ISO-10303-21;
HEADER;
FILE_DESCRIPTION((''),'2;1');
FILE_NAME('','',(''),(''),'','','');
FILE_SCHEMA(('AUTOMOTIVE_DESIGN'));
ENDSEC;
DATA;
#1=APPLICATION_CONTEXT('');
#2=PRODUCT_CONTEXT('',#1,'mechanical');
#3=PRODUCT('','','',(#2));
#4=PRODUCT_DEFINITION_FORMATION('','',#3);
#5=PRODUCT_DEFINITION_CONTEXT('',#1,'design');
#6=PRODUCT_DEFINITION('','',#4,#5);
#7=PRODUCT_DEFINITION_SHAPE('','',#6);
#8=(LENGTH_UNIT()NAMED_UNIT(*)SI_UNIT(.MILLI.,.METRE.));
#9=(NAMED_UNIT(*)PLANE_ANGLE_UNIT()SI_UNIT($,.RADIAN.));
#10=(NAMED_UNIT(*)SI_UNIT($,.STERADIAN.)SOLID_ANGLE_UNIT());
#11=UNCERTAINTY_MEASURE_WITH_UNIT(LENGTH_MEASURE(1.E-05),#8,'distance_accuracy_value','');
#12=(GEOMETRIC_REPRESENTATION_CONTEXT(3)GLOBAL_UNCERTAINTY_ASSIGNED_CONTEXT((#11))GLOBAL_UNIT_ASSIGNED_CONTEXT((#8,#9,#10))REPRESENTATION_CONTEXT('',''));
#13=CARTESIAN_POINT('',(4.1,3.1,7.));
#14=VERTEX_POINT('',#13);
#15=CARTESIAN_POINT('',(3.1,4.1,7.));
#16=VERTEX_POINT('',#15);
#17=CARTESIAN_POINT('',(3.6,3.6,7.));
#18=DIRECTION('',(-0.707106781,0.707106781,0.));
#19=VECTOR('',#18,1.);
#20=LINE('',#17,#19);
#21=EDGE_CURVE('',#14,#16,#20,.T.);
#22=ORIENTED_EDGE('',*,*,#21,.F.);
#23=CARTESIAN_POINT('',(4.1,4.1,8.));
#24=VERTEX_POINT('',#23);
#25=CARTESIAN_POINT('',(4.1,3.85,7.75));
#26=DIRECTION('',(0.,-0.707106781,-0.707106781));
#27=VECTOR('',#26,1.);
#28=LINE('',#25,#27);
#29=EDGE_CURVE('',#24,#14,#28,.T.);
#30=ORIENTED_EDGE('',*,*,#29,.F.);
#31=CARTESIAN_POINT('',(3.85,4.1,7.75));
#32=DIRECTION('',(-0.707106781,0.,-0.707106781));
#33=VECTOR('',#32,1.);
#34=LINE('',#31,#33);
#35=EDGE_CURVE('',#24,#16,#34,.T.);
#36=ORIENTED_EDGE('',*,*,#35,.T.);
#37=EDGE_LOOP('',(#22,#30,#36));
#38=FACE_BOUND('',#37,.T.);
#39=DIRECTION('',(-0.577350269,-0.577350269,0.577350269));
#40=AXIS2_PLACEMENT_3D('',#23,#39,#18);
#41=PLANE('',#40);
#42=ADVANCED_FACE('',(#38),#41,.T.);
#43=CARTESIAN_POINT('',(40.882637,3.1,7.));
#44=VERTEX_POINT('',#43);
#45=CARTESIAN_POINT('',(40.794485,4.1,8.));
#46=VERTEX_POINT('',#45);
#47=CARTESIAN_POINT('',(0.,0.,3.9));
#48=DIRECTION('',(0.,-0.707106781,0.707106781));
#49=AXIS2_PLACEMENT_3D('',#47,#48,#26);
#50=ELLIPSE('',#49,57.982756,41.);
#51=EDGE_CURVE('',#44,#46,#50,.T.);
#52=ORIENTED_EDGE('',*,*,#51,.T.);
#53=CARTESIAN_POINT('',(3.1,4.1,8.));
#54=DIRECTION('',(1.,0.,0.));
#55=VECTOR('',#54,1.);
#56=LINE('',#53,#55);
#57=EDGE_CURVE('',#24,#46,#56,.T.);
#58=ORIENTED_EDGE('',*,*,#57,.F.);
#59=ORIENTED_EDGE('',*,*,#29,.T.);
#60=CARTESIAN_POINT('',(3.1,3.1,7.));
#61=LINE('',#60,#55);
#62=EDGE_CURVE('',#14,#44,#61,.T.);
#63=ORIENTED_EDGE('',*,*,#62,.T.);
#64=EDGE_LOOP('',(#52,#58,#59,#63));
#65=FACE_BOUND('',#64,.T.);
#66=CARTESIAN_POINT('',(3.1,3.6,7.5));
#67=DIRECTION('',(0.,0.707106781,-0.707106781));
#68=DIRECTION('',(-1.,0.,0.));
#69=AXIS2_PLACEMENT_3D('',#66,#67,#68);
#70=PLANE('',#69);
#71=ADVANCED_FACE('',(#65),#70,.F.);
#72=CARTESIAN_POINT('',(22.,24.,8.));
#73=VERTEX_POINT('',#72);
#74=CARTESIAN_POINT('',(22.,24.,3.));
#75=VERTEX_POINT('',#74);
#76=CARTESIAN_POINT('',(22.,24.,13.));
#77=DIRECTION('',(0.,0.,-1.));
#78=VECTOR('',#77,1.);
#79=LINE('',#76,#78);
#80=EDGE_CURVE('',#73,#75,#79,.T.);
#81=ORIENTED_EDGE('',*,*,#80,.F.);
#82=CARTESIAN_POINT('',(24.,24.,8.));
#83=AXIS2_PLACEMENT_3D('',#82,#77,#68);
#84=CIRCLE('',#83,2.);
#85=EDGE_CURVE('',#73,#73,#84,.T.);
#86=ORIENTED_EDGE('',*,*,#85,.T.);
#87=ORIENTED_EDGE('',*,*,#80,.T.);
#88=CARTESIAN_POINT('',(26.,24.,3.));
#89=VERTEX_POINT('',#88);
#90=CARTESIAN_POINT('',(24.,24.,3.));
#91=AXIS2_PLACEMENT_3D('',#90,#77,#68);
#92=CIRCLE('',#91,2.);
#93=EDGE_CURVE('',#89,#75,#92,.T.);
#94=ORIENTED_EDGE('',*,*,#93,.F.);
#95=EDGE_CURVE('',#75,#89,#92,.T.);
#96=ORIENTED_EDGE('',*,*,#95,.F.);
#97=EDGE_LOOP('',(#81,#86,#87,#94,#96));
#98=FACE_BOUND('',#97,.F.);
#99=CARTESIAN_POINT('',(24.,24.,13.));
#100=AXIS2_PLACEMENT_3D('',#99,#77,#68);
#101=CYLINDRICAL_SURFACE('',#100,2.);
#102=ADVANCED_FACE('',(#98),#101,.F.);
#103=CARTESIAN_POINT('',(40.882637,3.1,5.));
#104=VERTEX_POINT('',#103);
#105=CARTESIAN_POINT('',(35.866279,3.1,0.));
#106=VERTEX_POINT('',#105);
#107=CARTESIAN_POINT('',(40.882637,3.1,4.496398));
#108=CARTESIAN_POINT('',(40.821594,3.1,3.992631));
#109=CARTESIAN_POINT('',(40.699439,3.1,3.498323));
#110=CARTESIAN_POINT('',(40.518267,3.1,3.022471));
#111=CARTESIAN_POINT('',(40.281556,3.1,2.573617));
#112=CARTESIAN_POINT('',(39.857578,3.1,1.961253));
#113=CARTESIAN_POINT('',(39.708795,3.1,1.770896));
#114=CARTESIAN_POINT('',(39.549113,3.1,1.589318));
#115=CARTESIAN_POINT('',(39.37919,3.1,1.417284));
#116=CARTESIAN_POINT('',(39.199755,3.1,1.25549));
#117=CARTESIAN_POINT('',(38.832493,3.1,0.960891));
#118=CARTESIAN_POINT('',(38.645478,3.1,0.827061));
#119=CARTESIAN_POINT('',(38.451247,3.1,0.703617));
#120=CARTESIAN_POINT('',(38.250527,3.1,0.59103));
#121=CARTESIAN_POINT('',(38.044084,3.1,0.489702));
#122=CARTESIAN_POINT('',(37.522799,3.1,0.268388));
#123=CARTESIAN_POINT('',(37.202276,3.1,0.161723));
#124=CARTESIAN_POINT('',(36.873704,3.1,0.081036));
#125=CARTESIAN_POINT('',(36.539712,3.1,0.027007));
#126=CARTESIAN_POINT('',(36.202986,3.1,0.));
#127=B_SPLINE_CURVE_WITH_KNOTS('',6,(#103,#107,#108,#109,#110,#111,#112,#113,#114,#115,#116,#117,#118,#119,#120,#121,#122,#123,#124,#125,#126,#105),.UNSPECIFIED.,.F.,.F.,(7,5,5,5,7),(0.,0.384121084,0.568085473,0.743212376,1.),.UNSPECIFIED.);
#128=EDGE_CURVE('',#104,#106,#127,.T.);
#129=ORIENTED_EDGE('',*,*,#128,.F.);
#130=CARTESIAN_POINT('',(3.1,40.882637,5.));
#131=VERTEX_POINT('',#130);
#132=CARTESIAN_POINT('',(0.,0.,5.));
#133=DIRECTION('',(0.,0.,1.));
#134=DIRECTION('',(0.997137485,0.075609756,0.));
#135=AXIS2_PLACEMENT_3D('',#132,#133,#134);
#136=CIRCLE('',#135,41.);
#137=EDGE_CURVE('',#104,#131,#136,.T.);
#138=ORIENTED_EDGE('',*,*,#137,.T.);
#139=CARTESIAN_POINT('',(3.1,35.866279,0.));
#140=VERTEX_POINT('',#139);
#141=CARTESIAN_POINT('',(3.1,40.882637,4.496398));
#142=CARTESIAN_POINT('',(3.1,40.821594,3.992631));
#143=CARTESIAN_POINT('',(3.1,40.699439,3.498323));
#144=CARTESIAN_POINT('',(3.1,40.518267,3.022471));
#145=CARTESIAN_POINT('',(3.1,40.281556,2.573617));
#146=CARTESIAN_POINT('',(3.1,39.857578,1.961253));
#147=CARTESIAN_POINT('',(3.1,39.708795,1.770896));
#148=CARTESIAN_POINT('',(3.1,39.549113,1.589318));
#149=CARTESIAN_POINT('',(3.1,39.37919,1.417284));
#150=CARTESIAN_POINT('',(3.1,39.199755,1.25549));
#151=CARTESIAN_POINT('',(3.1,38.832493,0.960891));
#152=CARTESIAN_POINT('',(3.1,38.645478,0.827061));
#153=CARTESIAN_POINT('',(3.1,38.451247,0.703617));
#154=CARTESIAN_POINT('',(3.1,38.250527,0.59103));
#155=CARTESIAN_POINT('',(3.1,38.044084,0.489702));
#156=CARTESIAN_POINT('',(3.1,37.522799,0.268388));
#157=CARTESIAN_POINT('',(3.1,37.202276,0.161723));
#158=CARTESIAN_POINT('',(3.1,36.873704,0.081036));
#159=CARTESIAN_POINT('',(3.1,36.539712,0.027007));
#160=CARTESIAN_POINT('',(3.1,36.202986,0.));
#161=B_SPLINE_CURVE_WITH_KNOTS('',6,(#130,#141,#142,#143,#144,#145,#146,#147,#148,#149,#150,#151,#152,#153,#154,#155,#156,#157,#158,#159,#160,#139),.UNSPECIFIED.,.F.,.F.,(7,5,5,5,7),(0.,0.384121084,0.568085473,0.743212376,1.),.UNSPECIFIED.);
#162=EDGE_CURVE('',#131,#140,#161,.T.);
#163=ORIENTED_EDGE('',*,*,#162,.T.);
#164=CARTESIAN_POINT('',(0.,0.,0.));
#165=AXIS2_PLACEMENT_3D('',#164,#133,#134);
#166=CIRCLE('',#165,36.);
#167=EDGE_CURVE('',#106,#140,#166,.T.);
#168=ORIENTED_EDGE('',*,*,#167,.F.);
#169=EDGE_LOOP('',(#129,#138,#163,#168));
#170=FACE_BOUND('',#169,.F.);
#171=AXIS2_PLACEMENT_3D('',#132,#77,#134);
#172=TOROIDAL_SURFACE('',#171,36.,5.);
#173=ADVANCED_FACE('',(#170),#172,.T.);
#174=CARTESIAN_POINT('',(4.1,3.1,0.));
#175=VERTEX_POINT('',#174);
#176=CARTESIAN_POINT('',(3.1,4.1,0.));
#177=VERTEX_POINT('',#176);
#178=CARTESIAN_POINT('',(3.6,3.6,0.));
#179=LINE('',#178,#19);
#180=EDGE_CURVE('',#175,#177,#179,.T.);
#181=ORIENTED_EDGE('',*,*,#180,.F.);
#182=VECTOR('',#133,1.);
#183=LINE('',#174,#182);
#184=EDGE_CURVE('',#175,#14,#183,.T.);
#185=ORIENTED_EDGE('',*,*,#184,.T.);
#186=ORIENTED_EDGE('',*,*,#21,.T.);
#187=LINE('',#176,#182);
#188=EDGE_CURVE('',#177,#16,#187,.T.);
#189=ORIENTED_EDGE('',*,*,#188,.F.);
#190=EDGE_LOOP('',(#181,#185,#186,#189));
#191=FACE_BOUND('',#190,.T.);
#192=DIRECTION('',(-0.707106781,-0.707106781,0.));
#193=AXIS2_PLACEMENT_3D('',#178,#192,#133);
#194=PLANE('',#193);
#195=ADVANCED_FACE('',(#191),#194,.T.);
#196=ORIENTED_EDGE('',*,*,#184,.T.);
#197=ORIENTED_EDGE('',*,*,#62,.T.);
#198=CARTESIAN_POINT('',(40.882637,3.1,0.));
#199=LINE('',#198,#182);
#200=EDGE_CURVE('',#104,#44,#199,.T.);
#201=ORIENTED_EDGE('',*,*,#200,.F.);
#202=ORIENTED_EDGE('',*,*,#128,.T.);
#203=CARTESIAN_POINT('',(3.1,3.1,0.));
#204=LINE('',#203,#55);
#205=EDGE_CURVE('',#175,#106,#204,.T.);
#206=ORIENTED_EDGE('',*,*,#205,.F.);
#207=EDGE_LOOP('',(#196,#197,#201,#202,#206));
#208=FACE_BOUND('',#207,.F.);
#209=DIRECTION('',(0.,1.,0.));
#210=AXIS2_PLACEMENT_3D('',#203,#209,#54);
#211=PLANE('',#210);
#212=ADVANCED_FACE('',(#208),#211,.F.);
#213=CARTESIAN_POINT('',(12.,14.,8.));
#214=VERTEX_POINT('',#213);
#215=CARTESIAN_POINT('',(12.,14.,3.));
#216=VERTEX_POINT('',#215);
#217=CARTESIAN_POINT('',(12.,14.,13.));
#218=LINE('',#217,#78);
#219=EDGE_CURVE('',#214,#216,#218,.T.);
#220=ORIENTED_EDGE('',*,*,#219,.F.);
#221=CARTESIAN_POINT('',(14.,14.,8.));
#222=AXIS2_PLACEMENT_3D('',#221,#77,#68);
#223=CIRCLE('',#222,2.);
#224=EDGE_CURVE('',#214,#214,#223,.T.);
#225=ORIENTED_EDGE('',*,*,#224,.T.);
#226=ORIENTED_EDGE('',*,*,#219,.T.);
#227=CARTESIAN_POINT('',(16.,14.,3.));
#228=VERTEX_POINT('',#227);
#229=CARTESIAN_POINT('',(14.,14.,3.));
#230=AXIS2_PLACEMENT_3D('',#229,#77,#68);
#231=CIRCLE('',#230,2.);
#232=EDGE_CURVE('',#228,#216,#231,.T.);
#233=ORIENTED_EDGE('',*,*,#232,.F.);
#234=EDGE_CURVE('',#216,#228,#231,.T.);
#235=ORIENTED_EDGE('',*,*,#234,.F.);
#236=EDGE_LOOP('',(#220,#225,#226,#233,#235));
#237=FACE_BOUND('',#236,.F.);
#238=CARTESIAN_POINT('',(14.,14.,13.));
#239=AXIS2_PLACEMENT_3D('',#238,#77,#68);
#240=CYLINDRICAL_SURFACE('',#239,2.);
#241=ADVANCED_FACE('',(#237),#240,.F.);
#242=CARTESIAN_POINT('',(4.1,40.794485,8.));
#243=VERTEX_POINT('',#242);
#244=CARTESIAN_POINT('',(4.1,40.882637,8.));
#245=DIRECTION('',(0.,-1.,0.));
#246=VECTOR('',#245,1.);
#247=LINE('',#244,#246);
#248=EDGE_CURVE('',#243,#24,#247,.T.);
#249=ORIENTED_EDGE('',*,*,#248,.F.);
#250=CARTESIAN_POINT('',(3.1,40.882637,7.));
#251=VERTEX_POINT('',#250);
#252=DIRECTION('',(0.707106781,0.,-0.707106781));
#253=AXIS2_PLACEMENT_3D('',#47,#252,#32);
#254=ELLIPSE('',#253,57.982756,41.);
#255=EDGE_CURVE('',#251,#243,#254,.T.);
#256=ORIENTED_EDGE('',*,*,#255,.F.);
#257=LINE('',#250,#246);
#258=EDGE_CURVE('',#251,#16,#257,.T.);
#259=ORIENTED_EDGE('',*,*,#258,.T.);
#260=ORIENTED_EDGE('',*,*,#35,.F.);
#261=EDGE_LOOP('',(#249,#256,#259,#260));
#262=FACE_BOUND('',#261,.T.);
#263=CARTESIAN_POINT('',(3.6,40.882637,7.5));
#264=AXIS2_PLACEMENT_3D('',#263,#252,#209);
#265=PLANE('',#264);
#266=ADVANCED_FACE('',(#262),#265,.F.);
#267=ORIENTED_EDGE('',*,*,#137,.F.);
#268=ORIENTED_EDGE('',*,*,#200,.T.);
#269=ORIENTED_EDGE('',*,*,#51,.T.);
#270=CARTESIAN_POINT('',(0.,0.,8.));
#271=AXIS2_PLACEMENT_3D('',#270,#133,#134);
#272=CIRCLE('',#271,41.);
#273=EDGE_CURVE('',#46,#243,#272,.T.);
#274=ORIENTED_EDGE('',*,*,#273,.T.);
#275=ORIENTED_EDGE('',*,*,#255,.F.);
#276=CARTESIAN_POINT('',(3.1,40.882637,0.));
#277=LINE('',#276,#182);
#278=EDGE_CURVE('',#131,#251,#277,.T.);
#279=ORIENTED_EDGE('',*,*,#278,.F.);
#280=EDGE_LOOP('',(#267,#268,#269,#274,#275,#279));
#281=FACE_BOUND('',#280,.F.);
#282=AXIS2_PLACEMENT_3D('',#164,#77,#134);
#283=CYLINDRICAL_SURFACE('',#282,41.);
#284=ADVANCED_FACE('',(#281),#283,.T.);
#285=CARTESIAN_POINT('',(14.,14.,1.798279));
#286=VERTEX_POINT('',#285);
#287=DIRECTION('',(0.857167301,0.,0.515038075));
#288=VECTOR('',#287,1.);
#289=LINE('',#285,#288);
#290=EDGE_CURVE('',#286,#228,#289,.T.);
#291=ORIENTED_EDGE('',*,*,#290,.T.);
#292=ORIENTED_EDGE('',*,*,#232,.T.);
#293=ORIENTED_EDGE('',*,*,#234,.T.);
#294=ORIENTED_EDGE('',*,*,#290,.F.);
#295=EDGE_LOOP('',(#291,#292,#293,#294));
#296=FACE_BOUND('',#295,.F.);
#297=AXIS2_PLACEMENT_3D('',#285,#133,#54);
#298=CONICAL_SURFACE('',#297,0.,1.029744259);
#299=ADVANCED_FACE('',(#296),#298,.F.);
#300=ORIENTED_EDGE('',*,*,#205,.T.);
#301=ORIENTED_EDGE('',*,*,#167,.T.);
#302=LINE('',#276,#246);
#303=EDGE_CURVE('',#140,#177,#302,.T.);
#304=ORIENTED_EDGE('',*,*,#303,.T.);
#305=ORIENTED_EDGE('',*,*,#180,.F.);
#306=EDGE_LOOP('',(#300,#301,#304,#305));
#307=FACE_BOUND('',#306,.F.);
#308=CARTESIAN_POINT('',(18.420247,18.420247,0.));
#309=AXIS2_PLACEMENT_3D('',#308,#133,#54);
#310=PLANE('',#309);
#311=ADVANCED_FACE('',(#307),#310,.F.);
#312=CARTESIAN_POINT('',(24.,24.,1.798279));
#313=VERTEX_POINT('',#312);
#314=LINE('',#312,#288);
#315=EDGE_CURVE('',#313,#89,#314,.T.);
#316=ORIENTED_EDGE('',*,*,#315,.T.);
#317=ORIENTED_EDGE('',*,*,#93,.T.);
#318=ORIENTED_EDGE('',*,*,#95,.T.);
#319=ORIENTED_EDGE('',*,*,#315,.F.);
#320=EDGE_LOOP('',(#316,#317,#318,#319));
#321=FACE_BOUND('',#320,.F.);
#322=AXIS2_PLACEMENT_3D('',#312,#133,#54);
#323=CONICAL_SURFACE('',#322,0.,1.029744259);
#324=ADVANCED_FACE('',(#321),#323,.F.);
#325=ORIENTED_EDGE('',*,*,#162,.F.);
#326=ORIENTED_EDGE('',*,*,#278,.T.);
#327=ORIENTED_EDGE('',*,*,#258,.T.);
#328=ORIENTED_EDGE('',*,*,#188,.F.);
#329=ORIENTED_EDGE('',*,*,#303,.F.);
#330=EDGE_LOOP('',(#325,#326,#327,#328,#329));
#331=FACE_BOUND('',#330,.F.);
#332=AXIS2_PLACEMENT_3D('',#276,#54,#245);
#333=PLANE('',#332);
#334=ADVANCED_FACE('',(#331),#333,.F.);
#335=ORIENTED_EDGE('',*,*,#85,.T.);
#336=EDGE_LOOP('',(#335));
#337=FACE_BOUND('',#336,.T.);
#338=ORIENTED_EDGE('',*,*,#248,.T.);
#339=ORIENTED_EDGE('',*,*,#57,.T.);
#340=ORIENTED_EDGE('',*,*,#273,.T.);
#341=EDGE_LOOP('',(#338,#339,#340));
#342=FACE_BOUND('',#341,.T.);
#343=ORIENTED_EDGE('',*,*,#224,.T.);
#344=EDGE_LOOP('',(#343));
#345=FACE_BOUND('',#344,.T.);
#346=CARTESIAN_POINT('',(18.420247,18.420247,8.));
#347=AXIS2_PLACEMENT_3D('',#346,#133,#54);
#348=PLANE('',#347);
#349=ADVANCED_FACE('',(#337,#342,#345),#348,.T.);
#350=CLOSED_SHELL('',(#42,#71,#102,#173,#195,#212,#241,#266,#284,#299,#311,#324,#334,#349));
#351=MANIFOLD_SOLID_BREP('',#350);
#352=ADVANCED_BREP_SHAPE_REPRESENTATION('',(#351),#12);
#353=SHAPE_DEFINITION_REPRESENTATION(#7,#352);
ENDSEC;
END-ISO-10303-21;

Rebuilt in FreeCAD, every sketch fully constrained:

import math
import FreeCAD as App
import Part
import Sketcher
from FreeCAD import Vector


def edges_at(feature, points):
    """Names of the edges that pass closest to the given points."""
    edges = feature.Shape.Edges
    near = lambda p: min(range(len(edges)), key=lambda i: edges[i].distToShape(Part.Vertex(*p))[0])
    return sorted({f"Edge{near(p) + 1}" for p in points})

doc = App.newDocument("Part")
params = doc.addObject("Spreadsheet::Sheet", "Params")
for row, (alias, value) in enumerate([
    ("sketch1_radius", "41 mm"),
    ("pad1_length", "8 mm"),
    ("sketch2_diameter", "4 mm"),
    ("hole_diameter", "4 mm"),
    ("hole_depth", "5 mm"),
    ("chamfer_size", "1 mm"),
    ("fillet_radius", "5 mm"),
], start=1):
    params.set(f"A{row}", alias)
    params.set(f"B{row}", "=" + value)
    params.setAlias(f"B{row}", alias)

body = doc.addObject("PartDesign::Body", "Body")

sketch1 = doc.addObject("Sketcher::SketchObject", "Sketch")
body.addObject(sketch1)
sketch1.AttachmentSupport = (doc.XY_Plane, [""])
sketch1.MapMode = "FlatFace"
sketch1.addGeometry([
    Part.LineSegment(Vector(3.1, 3.1, 0), Vector(40.882637, 3.1, 0)),
    Part.ArcOfCircle(Part.Circle(Vector(0, 0, 0), Vector(0, 0, 1), 41), math.radians(4.336258), math.radians(85.663742)),
    Part.LineSegment(Vector(3.1, 40.882637, 0), Vector(3.1, 3.1, 0)),
], False)
sketch1.addConstraint([
    Sketcher.Constraint("Coincident", 0, 2, 1, 1),
    Sketcher.Constraint("Coincident", 1, 2, 2, 1),
    Sketcher.Constraint("Coincident", 2, 2, 0, 1),
    Sketcher.Constraint("Horizontal", 0),
    Sketcher.Constraint("Vertical", 2),
    Sketcher.Constraint("Coincident", 1, 3, -1, 1),
    Sketcher.Constraint("Equal", 0, 2),
    Sketcher.Constraint("Radius", 1, 41.0),
    Sketcher.Constraint("DistanceY", -1, 1, 0, 2, 3.1),
])
sketch1.setExpression("Constraints[7]", "Params.sketch1_radius")
pad1 = doc.addObject("PartDesign::Pad", "Pad")
body.addObject(pad1)
pad1.Profile = sketch1
pad1.setExpression("Length", "Params.pad1_length")

sketch2 = doc.addObject("Sketcher::SketchObject", "Sketch001")
body.addObject(sketch2)
sketch2.AttachmentSupport = (doc.XY_Plane, [""])
sketch2.MapMode = "FlatFace"
sketch2.AttachmentOffset = App.Placement(Vector(0, 0, 8), App.Rotation())
sketch2.addGeometry([
    Part.Circle(Vector(14, 14, 0), Vector(0, 0, 1), 2),
    Part.Circle(Vector(24, 24, 0), Vector(0, 0, 1), 2),
], False)
sketch2.addConstraint([
    Sketcher.Constraint("Equal", 0, 1),
    Sketcher.Constraint("Diameter", 0, 4.0),
    Sketcher.Constraint("DistanceX", -1, 1, 0, 3, 14.0),
    Sketcher.Constraint("DistanceY", -1, 1, 0, 3, 14.0),
    Sketcher.Constraint("DistanceX", -1, 1, 1, 3, 24.0),
    Sketcher.Constraint("DistanceY", -1, 1, 1, 3, 24.0),
])
sketch2.setExpression("Constraints[1]", "Params.sketch2_diameter")
doc.recompute()
hole = doc.addObject("PartDesign::Hole", "Hole")
body.addObject(hole)
hole.Profile = sketch2
hole.ThreadType = "None"
hole.setExpression("Diameter", "Params.hole_diameter")
hole.DepthType = "Dimension"
hole.setExpression("Depth", "Params.hole_depth")
hole.DrillPoint = "Angled"
hole.DrillPointAngle = 118
doc.recompute()

chamfer = doc.addObject("PartDesign::Chamfer", "Chamfer")
body.addObject(chamfer)
chamfer.Base = (hole, edges_at(hole, [(3.1, 3.1, 4), (21.991, 3.1, 8), (3.1, 21.991, 8)]))
chamfer.setExpression("Size", "Params.chamfer_size")
doc.recompute()

fillet = doc.addObject("PartDesign::Fillet", "Fillet")
body.addObject(fillet)
fillet.Base = (chamfer, edges_at(chamfer, [(28.991, 28.991, 0)]))
fillet.setExpression("Radius", "Params.fillet_radius")

doc.recompute()
